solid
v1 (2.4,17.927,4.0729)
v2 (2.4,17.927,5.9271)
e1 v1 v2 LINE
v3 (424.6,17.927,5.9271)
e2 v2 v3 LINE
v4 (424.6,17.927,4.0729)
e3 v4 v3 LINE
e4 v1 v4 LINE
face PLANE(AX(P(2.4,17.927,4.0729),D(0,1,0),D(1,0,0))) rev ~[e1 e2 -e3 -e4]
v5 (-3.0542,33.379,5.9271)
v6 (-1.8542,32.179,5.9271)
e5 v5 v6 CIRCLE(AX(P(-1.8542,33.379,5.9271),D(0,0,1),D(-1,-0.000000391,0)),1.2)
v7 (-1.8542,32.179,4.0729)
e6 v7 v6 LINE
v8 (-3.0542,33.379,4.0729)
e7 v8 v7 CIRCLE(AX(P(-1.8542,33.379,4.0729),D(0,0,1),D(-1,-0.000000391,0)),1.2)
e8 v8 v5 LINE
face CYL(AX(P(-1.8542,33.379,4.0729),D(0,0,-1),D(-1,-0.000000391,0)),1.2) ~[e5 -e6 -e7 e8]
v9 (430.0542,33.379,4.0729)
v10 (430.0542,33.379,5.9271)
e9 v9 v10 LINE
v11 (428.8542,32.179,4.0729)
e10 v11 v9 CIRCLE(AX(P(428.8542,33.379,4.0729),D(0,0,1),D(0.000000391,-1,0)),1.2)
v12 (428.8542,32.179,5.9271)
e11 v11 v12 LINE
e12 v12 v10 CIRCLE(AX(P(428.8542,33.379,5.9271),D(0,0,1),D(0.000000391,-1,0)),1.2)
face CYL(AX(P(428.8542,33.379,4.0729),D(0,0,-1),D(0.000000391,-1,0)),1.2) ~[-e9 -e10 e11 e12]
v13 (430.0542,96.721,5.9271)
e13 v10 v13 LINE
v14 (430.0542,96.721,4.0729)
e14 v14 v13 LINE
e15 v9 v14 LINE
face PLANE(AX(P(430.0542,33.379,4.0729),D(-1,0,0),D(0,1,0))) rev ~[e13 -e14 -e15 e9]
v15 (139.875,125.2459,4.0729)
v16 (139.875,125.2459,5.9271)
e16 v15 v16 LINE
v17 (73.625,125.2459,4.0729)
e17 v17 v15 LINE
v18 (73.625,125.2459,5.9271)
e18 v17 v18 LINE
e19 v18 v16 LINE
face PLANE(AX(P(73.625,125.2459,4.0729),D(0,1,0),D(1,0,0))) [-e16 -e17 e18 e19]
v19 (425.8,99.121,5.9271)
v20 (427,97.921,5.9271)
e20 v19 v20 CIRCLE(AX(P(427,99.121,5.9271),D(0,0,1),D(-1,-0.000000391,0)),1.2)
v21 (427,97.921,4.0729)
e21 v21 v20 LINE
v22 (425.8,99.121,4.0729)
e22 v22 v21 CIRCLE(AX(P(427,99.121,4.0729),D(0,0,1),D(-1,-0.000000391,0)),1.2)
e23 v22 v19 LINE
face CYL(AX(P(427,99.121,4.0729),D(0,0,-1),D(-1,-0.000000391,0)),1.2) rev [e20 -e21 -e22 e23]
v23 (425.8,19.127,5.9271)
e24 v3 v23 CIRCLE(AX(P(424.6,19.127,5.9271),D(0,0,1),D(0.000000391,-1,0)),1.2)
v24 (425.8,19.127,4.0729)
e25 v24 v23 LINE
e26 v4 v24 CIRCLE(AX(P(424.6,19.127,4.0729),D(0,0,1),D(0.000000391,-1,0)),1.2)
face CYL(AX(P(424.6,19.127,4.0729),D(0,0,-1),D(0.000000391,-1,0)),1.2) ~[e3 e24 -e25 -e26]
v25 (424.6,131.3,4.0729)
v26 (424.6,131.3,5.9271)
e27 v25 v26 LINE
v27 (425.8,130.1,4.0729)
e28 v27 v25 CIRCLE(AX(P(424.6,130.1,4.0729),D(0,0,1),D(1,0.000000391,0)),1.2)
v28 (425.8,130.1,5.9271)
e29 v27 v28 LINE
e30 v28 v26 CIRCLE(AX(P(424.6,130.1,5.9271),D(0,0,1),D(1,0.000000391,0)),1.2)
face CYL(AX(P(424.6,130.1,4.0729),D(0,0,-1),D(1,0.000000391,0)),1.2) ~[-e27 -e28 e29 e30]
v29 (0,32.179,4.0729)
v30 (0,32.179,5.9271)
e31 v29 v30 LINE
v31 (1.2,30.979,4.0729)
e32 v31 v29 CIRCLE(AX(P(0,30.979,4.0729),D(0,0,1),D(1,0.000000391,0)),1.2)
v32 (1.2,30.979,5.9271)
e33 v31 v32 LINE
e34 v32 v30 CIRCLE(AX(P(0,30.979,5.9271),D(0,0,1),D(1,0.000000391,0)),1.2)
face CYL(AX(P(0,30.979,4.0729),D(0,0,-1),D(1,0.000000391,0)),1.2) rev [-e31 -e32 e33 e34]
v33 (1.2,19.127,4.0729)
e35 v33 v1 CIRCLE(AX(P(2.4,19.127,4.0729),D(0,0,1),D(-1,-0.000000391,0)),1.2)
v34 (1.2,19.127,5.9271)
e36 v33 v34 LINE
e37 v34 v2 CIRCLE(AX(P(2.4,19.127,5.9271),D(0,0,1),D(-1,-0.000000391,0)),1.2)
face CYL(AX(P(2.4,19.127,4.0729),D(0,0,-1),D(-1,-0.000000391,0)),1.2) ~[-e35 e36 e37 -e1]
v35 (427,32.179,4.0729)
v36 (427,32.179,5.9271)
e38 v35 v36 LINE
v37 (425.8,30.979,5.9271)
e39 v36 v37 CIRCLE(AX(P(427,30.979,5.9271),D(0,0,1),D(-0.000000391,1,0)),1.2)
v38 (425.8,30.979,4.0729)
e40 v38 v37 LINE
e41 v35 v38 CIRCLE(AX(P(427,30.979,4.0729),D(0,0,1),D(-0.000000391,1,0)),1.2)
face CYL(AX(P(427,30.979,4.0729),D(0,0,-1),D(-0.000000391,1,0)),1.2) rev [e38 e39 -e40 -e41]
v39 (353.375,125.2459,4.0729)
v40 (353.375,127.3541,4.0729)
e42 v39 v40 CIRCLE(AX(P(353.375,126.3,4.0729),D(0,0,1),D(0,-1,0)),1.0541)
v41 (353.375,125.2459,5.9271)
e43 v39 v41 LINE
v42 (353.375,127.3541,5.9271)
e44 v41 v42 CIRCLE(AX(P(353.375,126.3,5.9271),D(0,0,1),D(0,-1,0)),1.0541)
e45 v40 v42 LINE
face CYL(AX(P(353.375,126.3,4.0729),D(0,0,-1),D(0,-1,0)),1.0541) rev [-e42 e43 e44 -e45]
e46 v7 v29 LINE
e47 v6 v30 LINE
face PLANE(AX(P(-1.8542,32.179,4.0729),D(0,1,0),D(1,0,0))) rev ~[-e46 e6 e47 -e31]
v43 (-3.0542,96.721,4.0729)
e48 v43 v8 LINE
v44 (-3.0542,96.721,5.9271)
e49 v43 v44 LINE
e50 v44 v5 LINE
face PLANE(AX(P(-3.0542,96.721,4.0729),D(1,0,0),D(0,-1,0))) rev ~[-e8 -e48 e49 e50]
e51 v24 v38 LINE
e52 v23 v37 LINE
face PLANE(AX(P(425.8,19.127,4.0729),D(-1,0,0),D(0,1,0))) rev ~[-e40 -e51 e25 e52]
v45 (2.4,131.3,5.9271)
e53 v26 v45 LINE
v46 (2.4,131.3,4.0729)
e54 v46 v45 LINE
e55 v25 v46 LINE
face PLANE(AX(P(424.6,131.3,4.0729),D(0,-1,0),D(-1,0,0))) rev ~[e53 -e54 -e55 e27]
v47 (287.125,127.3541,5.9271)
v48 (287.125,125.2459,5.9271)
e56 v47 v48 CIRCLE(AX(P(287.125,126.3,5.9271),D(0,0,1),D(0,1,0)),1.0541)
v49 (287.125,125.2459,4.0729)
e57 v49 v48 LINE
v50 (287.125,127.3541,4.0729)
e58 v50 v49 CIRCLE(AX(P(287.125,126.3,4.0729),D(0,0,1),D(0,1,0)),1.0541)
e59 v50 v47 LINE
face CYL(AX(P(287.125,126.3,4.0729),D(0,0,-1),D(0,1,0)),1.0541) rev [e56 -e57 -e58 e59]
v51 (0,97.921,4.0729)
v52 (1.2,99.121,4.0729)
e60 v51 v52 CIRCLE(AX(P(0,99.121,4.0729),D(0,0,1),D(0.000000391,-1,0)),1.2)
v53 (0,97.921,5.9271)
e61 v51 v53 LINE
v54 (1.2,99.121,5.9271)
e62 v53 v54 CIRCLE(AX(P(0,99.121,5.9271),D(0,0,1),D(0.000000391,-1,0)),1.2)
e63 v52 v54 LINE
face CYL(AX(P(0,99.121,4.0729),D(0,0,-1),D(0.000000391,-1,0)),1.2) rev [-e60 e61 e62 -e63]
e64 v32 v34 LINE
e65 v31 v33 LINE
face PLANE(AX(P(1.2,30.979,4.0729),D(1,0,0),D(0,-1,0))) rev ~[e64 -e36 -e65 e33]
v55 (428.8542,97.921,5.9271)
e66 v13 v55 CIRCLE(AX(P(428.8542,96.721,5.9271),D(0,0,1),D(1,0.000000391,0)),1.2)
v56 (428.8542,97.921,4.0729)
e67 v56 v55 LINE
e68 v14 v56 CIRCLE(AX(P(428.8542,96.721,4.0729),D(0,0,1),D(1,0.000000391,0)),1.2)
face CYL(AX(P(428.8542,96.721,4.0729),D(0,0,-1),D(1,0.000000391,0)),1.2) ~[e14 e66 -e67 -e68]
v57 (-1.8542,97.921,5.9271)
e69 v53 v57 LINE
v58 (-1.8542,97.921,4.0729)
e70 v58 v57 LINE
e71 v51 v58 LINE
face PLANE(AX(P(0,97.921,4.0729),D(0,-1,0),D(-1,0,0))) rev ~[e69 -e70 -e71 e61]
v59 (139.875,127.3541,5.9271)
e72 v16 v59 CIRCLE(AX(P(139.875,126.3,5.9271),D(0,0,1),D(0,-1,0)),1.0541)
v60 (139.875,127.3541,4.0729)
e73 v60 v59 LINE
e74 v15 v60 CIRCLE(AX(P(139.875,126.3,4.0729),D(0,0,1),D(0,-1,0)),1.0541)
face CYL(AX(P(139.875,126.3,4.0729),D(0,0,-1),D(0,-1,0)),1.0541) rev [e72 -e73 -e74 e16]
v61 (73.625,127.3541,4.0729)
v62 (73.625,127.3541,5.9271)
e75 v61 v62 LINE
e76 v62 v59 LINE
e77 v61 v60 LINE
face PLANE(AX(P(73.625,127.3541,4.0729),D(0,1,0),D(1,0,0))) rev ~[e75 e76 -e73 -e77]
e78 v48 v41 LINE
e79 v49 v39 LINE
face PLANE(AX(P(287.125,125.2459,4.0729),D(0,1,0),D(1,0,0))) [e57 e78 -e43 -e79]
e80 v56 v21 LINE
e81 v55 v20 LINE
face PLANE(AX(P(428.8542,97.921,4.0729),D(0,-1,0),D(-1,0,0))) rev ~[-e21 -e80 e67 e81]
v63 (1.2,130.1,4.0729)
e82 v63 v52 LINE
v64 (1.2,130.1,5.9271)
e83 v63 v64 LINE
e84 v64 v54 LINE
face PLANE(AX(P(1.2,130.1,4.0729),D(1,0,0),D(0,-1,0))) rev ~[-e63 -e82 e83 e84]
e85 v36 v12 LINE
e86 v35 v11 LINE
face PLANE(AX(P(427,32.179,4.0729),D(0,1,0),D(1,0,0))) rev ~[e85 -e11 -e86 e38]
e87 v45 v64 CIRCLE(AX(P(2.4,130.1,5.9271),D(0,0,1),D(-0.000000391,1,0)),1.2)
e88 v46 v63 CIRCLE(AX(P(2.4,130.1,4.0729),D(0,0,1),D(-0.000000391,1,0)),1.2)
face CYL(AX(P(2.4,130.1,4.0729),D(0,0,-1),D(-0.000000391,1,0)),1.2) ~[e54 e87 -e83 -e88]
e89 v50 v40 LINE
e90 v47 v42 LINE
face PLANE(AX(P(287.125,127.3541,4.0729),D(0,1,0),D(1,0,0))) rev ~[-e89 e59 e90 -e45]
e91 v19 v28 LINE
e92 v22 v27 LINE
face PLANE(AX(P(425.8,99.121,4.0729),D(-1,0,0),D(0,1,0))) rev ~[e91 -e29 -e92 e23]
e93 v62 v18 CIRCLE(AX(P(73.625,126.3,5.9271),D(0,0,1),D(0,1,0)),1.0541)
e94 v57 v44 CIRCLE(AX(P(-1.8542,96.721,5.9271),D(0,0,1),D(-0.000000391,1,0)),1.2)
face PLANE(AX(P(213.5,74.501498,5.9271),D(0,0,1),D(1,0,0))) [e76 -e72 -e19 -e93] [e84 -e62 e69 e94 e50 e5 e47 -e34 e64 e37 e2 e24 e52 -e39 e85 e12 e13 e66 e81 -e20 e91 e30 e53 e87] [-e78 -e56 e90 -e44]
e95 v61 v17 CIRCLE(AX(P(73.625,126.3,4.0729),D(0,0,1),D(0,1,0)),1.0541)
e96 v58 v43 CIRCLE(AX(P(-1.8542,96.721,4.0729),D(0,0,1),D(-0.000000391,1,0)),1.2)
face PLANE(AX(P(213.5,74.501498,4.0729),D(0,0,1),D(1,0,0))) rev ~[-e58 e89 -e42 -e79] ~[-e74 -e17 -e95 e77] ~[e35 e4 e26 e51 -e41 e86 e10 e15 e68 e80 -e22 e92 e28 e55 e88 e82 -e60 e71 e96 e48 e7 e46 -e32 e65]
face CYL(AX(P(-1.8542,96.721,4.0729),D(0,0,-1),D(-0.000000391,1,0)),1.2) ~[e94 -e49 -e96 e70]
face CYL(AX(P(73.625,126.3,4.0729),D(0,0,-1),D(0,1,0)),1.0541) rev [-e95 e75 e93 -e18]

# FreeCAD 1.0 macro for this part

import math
import FreeCAD as App
import Part
import Sketcher

V = App.Vector

doc = App.newDocument("Part")
params = doc.addObject("Spreadsheet::Sheet", "Params")
for row, (alias, value) in enumerate([
    ("sketch1_radius", "1.2 mm"),
    ("sketch1_width", "422.2 mm"),
    ("sketch1_width2", "66.25 mm"),
    ("pad1_length", "1.8542 mm"),
], start=1):
    params.set(f"A{row}", alias)
    params.set(f"B{row}", "=" + value)
    params.setAlias(f"B{row}", alias)

body = doc.addObject("PartDesign::Body", "Body")

# Sketch on XY plane
sketch1 = body.newObject("Sketcher::SketchObject", "Sketch")
sketch1.AttachmentSupport = (doc.getObject("XY_Plane"), [""])
sketch1.MapMode = "FlatFace"
sketch1.AttachmentOffset = App.Placement(V(0, 0, 4.0729), App.Rotation())
sketch1.addGeometry(Part.LineSegment(V(-3.1, 96.7, 0), V(-3.1, 33.4, 0)), False)
sketch1.addGeometry(Part.ArcOfCircle(Part.Circle(V(-1.9, 33.4, 0), V(0, 0, 1), 1.2), math.radians(-180), math.radians(-90)), False)
sketch1.addGeometry(Part.LineSegment(V(-1.9, 32.2, 0), V(0, 32.2, 0)), False)
sketch1.addGeometry(Part.ArcOfCircle(Part.Circle(V(0, 31, 0), V(0, 0, 1), 1.2), math.radians(0), math.radians(90)), False)
sketch1.addGeometry(Part.LineSegment(V(1.2, 31, 0), V(1.2, 19.1, 0)), False)
sketch1.addGeometry(Part.ArcOfCircle(Part.Circle(V(2.4, 19.1, 0), V(0, 0, 1), 1.2), math.radians(-180), math.radians(-90)), False)
sketch1.addGeometry(Part.LineSegment(V(2.4, 17.9, 0), V(424.6, 17.9, 0)), False)
sketch1.addGeometry(Part.ArcOfCircle(Part.Circle(V(424.6, 19.1, 0), V(0, 0, 1), 1.2), math.radians(-90), math.radians(0)), False)
sketch1.addGeometry(Part.LineSegment(V(425.8, 19.1, 0), V(425.8, 31, 0)), False)
sketch1.addGeometry(Part.ArcOfCircle(Part.Circle(V(427, 31, 0), V(0, 0, 1), 1.2), math.radians(90), math.radians(180)), False)
sketch1.addGeometry(Part.LineSegment(V(427, 32.2, 0), V(428.9, 32.2, 0)), False)
sketch1.addGeometry(Part.ArcOfCircle(Part.Circle(V(428.9, 33.4, 0), V(0, 0, 1), 1.2), math.radians(-90), math.radians(0)), False)
sketch1.addGeometry(Part.LineSegment(V(430.1, 33.4, 0), V(430.1, 96.7, 0)), False)
sketch1.addGeometry(Part.ArcOfCircle(Part.Circle(V(428.9, 96.7, 0), V(0, 0, 1), 1.2), math.radians(0), math.radians(90)), False)
sketch1.addGeometry(Part.LineSegment(V(428.9, 97.9, 0), V(427, 97.9, 0)), False)
sketch1.addGeometry(Part.ArcOfCircle(Part.Circle(V(427, 99.1, 0), V(0, 0, 1), 1.2), math.radians(-180), math.radians(-90)), False)
sketch1.addGeometry(Part.LineSegment(V(425.8, 99.1, 0), V(425.8, 130.1, 0)), False)
sketch1.addGeometry(Part.ArcOfCircle(Part.Circle(V(424.6, 130.1, 0), V(0, 0, 1), 1.2), math.radians(0), math.radians(90)), False)
sketch1.addGeometry(Part.LineSegment(V(424.6, 131.3, 0), V(2.4, 131.3, 0)), False)
sketch1.addGeometry(Part.ArcOfCircle(Part.Circle(V(2.4, 130.1, 0), V(0, 0, 1), 1.2), math.radians(90), math.radians(180)), False)
sketch1.addGeometry(Part.LineSegment(V(1.2, 130.1, 0), V(1.2, 99.1, 0)), False)
sketch1.addGeometry(Part.ArcOfCircle(Part.Circle(V(0, 99.1, 0), V(0, 0, 1), 1.2), math.radians(-90), math.radians(0)), False)
sketch1.addGeometry(Part.LineSegment(V(0, 97.9, 0), V(-1.9, 97.9, 0)), False)
sketch1.addGeometry(Part.ArcOfCircle(Part.Circle(V(-1.9, 96.7, 0), V(0, 0, 1), 1.2), math.radians(90), math.radians(180)), False)
sketch1.addGeometry(Part.ArcOfCircle(Part.Circle(V(287.1, 126.3, 0), V(0, 0, 1), 1.1), math.radians(90), math.radians(270)), False)
sketch1.addGeometry(Part.LineSegment(V(287.1, 127.4, 0), V(353.4, 127.4, 0)), False)
sketch1.addGeometry(Part.ArcOfCircle(Part.Circle(V(353.4, 126.3, 0), V(0, 0, 1), 1.1), math.radians(-90), math.radians(90)), False)
sketch1.addGeometry(Part.LineSegment(V(353.4, 125.2, 0), V(287.1, 125.2, 0)), False)
sketch1.addGeometry(Part.ArcOfCircle(Part.Circle(V(73.6, 126.3, 0), V(0, 0, 1), 1.1), math.radians(90), math.radians(270)), False)
sketch1.addGeometry(Part.LineSegment(V(73.6, 127.4, 0), V(139.9, 127.4, 0)), False)
sketch1.addGeometry(Part.ArcOfCircle(Part.Circle(V(139.9, 126.3, 0), V(0, 0, 1), 1.1), math.radians(-90), math.radians(90)), False)
sketch1.addGeometry(Part.LineSegment(V(139.9, 125.2, 0), V(73.6, 125.2, 0)), False)
sketch1.addConstraint(Sketcher.Constraint("Tangent", 0, 2, 1, 1))
sketch1.addConstraint(Sketcher.Constraint("Tangent", 1, 2, 2, 1))
sketch1.addConstraint(Sketcher.Constraint("Tangent", 2, 2, 3, 2))
sketch1.addConstraint(Sketcher.Constraint("Tangent", 3, 1, 4, 1))
sketch1.addConstraint(Sketcher.Constraint("Tangent", 4, 2, 5, 1))
sketch1.addConstraint(Sketcher.Constraint("Tangent", 5, 2, 6, 1))
sketch1.addConstraint(Sketcher.Constraint("Tangent", 6, 2, 7, 1))
sketch1.addConstraint(Sketcher.Constraint("Tangent", 7, 2, 8, 1))
sketch1.addConstraint(Sketcher.Constraint("Tangent", 8, 2, 9, 2))
sketch1.addConstraint(Sketcher.Constraint("Tangent", 9, 1, 10, 1))
sketch1.addConstraint(Sketcher.Constraint("Tangent", 10, 2, 11, 1))
sketch1.addConstraint(Sketcher.Constraint("Tangent", 11, 2, 12, 1))
sketch1.addConstraint(Sketcher.Constraint("Tangent", 12, 2, 13, 1))
sketch1.addConstraint(Sketcher.Constraint("Tangent", 13, 2, 14, 1))
sketch1.addConstraint(Sketcher.Constraint("Tangent", 14, 2, 15, 2))
sketch1.addConstraint(Sketcher.Constraint("Tangent", 15, 1, 16, 1))
sketch1.addConstraint(Sketcher.Constraint("Tangent", 16, 2, 17, 1))
sketch1.addConstraint(Sketcher.Constraint("Tangent", 17, 2, 18, 1))
sketch1.addConstraint(Sketcher.Constraint("Tangent", 18, 2, 19, 1))
sketch1.addConstraint(Sketcher.Constraint("Tangent", 19, 2, 20, 1))
sketch1.addConstraint(Sketcher.Constraint("Tangent", 20, 2, 21, 2))
sketch1.addConstraint(Sketcher.Constraint("Tangent", 21, 1, 22, 1))
sketch1.addConstraint(Sketcher.Constraint("Tangent", 22, 2, 23, 1))
sketch1.addConstraint(Sketcher.Constraint("Tangent", 23, 2, 0, 1))
sketch1.addConstraint(Sketcher.Constraint("Tangent", 24, 1, 25, 1))
sketch1.addConstraint(Sketcher.Constraint("Tangent", 25, 2, 26, 2))
sketch1.addConstraint(Sketcher.Constraint("Tangent", 26, 1, 27, 1))
sketch1.addConstraint(Sketcher.Constraint("Tangent", 27, 2, 24, 2))
sketch1.addConstraint(Sketcher.Constraint("Tangent", 28, 1, 29, 1))
sketch1.addConstraint(Sketcher.Constraint("Tangent", 29, 2, 30, 2))
sketch1.addConstraint(Sketcher.Constraint("Tangent", 30, 1, 31, 1))
sketch1.addConstraint(Sketcher.Constraint("Tangent", 31, 2, 28, 2))
sketch1.addConstraint(Sketcher.Constraint("Vertical", 0))
sketch1.addConstraint(Sketcher.Constraint("Horizontal", 2))
sketch1.addConstraint(Sketcher.Constraint("Vertical", 4))
sketch1.addConstraint(Sketcher.Constraint("Horizontal", 6))
sketch1.addConstraint(Sketcher.Constraint("Vertical", 8))
sketch1.addConstraint(Sketcher.Constraint("Horizontal", 10))
sketch1.addConstraint(Sketcher.Constraint("Vertical", 12))
sketch1.addConstraint(Sketcher.Constraint("Horizontal", 14))
sketch1.addConstraint(Sketcher.Constraint("Vertical", 16))
sketch1.addConstraint(Sketcher.Constraint("Horizontal", 18))
sketch1.addConstraint(Sketcher.Constraint("Vertical", 20))
sketch1.addConstraint(Sketcher.Constraint("Horizontal", 22))
sketch1.addConstraint(Sketcher.Constraint("Horizontal", 25))
sketch1.addConstraint(Sketcher.Constraint("Horizontal", 27))
sketch1.addConstraint(Sketcher.Constraint("Horizontal", 29))
sketch1.addConstraint(Sketcher.Constraint("Horizontal", 31))
sketch1.addConstraint(Sketcher.Constraint("Equal", 1, 3))
sketch1.addConstraint(Sketcher.Constraint("Equal", 3, 5))
sketch1.addConstraint(Sketcher.Constraint("Equal", 5, 7))
sketch1.addConstraint(Sketcher.Constraint("Equal", 7, 9))
sketch1.addConstraint(Sketcher.Constraint("Equal", 9, 11))
sketch1.addConstraint(Sketcher.Constraint("Equal", 11, 13))
sketch1.addConstraint(Sketcher.Constraint("Equal", 13, 15))
sketch1.addConstraint(Sketcher.Constraint("Equal", 15, 17))
sketch1.addConstraint(Sketcher.Constraint("Equal", 17, 19))
sketch1.addConstraint(Sketcher.Constraint("Equal", 19, 21))
sketch1.addConstraint(Sketcher.Constraint("Equal", 21, 23))
sketch1.addConstraint(Sketcher.Constraint("Equal", 26, 28))
sketch1.addConstraint(Sketcher.Constraint("PointOnObject", 3, 3, -2))
sketch1.addConstraint(Sketcher.Constraint("PointOnObject", 21, 3, -2))
sketch1.addConstraint(Sketcher.Constraint("Horizontal", 3, 3, 9, 3))
sketch1.addConstraint(Sketcher.Constraint("Horizontal", 15, 3, 21, 3))
sketch1.addConstraint(Sketcher.Constraint("Horizontal", 26, 3, 28, 3))
sketch1.addConstraint(Sketcher.Constraint("Vertical", 9, 3, 15, 3))
sketch1.addConstraint(Sketcher.Constraint("Equal", 2, 10))
sketch1.addConstraint(Sketcher.Constraint("Equal", 27, 29))
sketch1.addConstraint(Sketcher.Constraint("Radius", 1, 1.2))
sketch1.addConstraint(Sketcher.Constraint("DistanceX", 6, 1, 6, 2, 422.2))
sketch1.addConstraint(Sketcher.Constraint("DistanceY", 28, 3, 18, 2, 5.0))
sketch1.addConstraint(Sketcher.Constraint("DistanceX", 25, 1, 25, 2, 66.25))
sketch1.addConstraint(Sketcher.Constraint("DistanceY", -1, 1, 17, 3, 130.1))
sketch1.addConstraint(Sketcher.Constraint("Radius", 24, 1.0541))
sketch1.addConstraint(Sketcher.Constraint("DistanceY", 0, 2, 0, 1, 63.342))
sketch1.addConstraint(Sketcher.Constraint("DistanceY", 4, 2, 4, 1, 11.852))
sketch1.addConstraint(Sketcher.Constraint("DistanceY", 16, 1, 16, 2, 30.979))
sketch1.addConstraint(Sketcher.Constraint("DistanceX", 30, 3, 24, 3, 147.25))
sketch1.addConstraint(Sketcher.Constraint("DistanceX", 2, 1, 2, 2, 1.8542))
sketch1.addConstraint(Sketcher.Constraint("DistanceX", -1, 1, 24, 3, 287.125))
sketch1.setExpression("Constraints[68]", "Params.sketch1_radius")
sketch1.setExpression("Constraints[69]", "Params.sketch1_width")
sketch1.setExpression("Constraints[71]", "Params.sketch1_width2")
pad1 = body.newObject("PartDesign::Pad", "Pad")
pad1.Profile = sketch1
pad1.setExpression("Length", "Params.pad1_length")

doc.recompute()
